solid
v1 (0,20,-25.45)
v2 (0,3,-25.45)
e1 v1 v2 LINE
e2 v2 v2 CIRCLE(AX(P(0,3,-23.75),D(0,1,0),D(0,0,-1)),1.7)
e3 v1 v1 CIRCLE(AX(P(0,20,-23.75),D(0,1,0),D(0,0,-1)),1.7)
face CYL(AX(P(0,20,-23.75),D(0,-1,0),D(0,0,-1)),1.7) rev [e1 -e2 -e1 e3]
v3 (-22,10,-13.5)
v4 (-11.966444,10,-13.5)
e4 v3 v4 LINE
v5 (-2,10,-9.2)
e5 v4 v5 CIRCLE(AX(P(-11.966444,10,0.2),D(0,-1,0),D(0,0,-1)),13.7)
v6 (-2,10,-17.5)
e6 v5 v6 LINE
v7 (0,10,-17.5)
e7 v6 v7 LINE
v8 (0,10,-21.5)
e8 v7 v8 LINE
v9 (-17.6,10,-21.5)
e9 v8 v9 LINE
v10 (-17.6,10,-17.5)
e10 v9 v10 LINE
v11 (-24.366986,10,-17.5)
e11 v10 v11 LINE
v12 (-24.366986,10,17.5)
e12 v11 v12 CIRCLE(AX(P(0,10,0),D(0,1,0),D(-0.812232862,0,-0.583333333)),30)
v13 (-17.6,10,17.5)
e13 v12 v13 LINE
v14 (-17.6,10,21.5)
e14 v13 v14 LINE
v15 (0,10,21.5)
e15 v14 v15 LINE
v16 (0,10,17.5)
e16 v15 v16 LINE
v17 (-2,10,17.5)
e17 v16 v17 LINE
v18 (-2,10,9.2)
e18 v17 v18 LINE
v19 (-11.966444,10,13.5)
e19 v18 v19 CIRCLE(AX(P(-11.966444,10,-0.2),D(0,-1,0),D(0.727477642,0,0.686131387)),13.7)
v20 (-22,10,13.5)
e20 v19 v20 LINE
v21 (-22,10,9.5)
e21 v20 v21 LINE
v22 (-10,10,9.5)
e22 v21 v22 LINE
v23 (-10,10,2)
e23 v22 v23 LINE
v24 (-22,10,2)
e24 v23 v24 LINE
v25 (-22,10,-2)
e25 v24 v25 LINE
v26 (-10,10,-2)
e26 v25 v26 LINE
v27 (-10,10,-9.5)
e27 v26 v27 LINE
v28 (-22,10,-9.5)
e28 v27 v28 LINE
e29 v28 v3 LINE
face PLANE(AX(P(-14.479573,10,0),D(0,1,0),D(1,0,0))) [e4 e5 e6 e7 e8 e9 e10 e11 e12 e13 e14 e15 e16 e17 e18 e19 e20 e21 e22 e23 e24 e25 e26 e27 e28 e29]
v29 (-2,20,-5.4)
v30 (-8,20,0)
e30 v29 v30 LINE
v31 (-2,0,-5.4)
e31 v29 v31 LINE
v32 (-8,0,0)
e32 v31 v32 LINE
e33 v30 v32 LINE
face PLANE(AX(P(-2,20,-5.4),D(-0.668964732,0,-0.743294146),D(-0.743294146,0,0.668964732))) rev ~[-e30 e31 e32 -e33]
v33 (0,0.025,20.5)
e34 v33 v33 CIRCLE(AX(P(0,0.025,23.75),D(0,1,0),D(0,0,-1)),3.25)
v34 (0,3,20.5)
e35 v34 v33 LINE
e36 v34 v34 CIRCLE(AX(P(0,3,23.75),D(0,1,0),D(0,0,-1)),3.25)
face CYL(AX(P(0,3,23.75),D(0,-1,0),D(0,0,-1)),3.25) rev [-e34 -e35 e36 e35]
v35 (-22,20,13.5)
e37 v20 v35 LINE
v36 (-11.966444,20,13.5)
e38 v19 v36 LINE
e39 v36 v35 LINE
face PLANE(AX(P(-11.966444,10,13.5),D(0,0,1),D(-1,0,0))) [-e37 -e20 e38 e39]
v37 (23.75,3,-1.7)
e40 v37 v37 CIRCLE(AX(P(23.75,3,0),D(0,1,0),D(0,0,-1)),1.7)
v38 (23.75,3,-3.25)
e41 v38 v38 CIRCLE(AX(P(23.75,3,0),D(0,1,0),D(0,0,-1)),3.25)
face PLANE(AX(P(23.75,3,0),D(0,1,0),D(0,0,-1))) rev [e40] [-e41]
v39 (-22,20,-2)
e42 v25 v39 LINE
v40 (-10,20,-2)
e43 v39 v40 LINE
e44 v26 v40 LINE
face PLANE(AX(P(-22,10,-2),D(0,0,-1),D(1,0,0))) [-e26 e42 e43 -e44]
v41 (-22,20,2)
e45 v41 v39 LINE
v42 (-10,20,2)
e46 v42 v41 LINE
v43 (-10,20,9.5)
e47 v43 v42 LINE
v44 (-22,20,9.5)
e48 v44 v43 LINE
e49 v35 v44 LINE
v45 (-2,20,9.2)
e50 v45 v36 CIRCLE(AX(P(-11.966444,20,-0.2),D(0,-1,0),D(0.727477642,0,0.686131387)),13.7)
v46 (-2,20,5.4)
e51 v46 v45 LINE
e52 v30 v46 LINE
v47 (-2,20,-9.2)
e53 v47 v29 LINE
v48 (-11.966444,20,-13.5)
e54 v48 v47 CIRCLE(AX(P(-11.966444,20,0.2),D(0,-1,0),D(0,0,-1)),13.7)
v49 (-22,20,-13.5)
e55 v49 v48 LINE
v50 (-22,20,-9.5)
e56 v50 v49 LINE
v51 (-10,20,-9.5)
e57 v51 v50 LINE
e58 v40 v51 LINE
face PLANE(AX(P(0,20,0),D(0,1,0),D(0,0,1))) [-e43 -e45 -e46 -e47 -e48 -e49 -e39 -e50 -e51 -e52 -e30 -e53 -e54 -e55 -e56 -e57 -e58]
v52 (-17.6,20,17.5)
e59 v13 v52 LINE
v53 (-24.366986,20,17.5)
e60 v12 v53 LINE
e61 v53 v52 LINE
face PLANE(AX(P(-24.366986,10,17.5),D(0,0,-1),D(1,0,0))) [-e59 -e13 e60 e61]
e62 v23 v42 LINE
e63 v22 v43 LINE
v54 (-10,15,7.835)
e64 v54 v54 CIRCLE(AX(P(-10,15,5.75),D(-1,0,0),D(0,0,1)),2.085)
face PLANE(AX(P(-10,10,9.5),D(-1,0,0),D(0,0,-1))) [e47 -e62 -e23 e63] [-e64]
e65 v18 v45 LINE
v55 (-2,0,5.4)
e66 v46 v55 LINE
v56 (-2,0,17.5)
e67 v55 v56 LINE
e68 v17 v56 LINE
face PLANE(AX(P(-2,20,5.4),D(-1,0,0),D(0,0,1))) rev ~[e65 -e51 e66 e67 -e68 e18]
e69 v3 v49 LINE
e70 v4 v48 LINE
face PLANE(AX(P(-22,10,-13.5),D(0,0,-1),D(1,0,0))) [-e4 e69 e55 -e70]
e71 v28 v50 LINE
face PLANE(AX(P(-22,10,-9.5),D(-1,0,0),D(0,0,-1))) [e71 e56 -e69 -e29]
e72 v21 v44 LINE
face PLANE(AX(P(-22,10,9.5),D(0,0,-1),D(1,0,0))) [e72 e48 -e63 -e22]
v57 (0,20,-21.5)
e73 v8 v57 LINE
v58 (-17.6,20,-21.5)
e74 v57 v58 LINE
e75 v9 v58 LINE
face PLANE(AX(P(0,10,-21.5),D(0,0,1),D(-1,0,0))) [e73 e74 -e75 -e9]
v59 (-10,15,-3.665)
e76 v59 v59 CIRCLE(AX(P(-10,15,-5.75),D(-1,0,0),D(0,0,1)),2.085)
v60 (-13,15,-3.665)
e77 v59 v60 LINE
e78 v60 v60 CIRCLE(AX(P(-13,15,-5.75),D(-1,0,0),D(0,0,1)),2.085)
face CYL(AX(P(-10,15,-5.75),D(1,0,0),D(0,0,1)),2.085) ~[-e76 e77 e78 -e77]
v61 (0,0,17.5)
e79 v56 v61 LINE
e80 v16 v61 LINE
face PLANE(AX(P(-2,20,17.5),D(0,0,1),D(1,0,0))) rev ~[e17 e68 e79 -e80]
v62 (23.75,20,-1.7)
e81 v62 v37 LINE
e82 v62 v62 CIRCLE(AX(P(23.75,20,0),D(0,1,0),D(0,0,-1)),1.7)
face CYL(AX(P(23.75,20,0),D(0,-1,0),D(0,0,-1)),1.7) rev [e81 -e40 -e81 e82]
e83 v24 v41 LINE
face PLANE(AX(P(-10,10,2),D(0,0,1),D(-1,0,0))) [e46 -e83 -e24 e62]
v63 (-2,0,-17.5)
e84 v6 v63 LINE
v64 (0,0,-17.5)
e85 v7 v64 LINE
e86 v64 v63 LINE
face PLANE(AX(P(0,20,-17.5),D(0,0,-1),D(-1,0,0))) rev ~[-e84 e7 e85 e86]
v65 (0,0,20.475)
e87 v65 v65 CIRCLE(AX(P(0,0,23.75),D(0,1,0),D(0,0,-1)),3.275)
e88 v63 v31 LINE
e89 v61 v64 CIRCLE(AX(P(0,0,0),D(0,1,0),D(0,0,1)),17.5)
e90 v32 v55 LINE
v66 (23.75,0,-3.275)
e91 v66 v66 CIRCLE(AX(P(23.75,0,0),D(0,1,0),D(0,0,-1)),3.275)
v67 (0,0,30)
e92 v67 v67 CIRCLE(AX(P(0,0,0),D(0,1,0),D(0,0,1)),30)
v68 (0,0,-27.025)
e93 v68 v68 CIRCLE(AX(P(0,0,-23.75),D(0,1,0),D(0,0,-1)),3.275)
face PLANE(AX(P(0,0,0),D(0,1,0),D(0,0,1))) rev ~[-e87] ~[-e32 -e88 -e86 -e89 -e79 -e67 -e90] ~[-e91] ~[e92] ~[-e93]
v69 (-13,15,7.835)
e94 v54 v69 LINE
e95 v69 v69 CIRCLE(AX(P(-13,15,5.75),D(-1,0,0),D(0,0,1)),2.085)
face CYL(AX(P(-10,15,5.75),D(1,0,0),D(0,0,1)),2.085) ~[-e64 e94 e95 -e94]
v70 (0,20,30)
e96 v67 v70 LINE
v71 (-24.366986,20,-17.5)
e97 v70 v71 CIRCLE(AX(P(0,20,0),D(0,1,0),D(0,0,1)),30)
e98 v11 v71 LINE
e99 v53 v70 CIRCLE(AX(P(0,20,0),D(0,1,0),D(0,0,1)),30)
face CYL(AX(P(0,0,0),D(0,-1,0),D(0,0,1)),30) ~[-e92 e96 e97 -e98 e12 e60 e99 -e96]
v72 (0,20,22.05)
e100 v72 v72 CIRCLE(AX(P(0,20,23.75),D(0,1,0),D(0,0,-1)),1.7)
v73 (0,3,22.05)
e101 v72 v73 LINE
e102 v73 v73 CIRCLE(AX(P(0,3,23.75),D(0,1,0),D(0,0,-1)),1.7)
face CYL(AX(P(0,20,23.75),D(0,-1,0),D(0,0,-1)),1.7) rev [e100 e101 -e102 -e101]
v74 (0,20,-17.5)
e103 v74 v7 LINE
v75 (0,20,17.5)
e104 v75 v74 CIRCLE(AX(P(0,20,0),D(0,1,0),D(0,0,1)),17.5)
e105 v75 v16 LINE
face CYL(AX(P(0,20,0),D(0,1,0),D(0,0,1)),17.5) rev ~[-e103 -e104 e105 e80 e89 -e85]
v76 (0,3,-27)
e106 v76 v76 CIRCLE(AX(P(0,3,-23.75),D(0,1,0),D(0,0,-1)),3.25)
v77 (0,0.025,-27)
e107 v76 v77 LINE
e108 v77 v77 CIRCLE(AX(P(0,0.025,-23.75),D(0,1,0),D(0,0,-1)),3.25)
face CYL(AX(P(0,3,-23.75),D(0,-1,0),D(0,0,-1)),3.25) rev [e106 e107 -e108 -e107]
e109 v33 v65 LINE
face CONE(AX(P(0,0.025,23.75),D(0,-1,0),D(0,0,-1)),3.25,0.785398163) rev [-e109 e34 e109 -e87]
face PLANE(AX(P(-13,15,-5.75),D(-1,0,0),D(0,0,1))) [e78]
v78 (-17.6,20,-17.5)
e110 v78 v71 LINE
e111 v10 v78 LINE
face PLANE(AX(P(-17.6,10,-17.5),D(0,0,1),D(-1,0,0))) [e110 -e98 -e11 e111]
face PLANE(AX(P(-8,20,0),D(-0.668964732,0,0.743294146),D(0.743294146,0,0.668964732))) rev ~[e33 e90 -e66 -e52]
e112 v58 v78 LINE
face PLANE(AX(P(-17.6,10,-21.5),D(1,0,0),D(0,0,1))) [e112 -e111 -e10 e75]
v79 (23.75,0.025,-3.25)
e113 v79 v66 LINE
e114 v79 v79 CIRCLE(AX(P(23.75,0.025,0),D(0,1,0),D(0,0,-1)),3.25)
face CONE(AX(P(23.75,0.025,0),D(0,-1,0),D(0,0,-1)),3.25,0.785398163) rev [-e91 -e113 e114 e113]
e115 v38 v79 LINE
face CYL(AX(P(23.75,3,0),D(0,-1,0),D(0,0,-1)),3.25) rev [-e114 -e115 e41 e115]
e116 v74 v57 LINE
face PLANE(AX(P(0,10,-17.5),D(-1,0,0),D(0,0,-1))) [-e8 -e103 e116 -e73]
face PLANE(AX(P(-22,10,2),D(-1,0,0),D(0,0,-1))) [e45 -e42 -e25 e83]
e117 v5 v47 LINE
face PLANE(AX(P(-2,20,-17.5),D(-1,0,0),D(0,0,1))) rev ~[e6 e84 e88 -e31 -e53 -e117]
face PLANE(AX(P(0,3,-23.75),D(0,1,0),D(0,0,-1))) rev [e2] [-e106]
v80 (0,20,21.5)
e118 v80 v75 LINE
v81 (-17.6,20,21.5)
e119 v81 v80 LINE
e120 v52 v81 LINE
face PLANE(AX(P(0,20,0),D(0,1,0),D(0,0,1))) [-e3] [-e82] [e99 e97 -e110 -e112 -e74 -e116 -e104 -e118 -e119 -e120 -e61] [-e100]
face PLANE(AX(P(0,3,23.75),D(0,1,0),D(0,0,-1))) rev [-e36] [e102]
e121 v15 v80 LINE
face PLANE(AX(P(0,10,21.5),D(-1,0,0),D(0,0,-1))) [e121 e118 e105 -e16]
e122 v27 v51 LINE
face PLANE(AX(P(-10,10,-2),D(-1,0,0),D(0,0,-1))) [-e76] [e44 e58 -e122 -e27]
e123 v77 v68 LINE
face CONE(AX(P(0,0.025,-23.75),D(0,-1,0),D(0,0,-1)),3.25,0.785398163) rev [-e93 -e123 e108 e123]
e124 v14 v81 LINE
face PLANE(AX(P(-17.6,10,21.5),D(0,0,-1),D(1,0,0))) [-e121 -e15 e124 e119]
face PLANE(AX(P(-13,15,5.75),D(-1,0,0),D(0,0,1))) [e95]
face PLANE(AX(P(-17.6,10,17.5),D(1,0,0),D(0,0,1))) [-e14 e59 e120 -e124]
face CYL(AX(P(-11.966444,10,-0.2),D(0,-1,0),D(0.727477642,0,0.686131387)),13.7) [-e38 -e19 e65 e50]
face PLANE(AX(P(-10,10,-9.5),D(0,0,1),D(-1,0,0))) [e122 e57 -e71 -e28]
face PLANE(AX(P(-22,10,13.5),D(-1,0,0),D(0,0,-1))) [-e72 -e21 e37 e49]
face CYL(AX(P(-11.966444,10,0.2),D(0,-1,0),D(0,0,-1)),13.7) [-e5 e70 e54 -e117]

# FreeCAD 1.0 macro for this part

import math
import FreeCAD as App
import Part
import Sketcher

V = App.Vector
Q = App.Units.Quantity

doc = App.newDocument("Part")
body = doc.addObject("PartDesign::Body", "Body")

sketch1 = body.newObject("Sketcher::SketchObject", "Sketch")
sketch1.AttachmentSupport = (doc.getObject("XZ_Plane"), [""])
sketch1.MapMode = "FlatFace"
sketch1.addGeometry(Part.Circle(V(0, 0, 0), V(0, 0, 1), 30), False)
sketch1.addConstraint([
    Sketcher.Constraint("Coincident", 0, 3, -1, 1),
    Sketcher.Constraint("Diameter", 0, 60.0),
])
pad1 = body.newObject("PartDesign::Pad", "Pad")
pad1.Profile = sketch1
pad1.Length = 20
pad1.Reversed = True

sketch2 = body.newObject("Sketcher::SketchObject", "Sketch001")
sketch2.AttachmentSupport = (doc.getObject("XZ_Plane"), [""])
sketch2.MapMode = "FlatFace"
sketch2.AttachmentOffset = App.Placement(V(0, 0, -20), App.Rotation())
sketch2.addGeometry([
    Part.ArcOfCircle(Part.Circle(V(0, 0, 0), V(0, 0, 1), 17.5), math.radians(-90), math.radians(90)),
    Part.LineSegment(V(0, -17.5, 0), V(-2, -17.5, 0)),
    Part.LineSegment(V(-2, -17.5, 0), V(-2, -5.4, 0)),
    Part.LineSegment(V(-2, -5.4, 0), V(-8, 0, 0)),
    Part.LineSegment(V(-8, 0, 0), V(-2, 5.4, 0)),
    Part.LineSegment(V(-2, 5.4, 0), V(-2, 17.5, 0)),
    Part.LineSegment(V(-2, 17.5, 0), V(0, 17.5, 0)),
], False)
sketch2.addConstraint([
    Sketcher.Constraint("Tangent", 0, 1, 1, 1),
    Sketcher.Constraint("Coincident", 1, 2, 2, 1),
    Sketcher.Constraint("Coincident", 2, 2, 3, 1),
    Sketcher.Constraint("Coincident", 3, 2, 4, 1),
    Sketcher.Constraint("Coincident", 4, 2, 5, 1),
    Sketcher.Constraint("Coincident", 5, 2, 6, 1),
    Sketcher.Constraint("Tangent", 6, 2, 0, 2),
    Sketcher.Constraint("Horizontal", 1),
    Sketcher.Constraint("Vertical", 2),
    Sketcher.Constraint("Vertical", 5),
    Sketcher.Constraint("Horizontal", 6),
    Sketcher.Constraint("Coincident", 0, 3, -1, 1),
    Sketcher.Constraint("Symmetric", 2, 2, 4, 2, -1),
    Sketcher.Constraint("PointOnObject", 3, 2, -1),
    Sketcher.Constraint("Radius", 0, 17.5),
    Sketcher.Constraint("DistanceX", 1, 2, 1, 1, 2.0),
    Sketcher.Constraint("DistanceY", 2, 1, 2, 2, 12.1),
    Sketcher.Constraint("DistanceX", 3, 2, -1, 1, 8.0),
])
pocket1 = body.newObject("PartDesign::Pocket", "Pocket")
pocket1.Profile = sketch2
pocket1.Type = "ThroughAll"
pocket1.Reversed = True

sketch3 = body.newObject("Sketcher::SketchObject", "Sketch002")
sketch3.AttachmentSupport = (doc.getObject("XZ_Plane"), [""])
sketch3.MapMode = "FlatFace"
sketch3.AttachmentOffset = App.Placement(V(0, 0, -10), App.Rotation())
sketch3.addGeometry([
    Part.LineSegment(V(-17.6, -17.5, 0), V(-24.4, -17.5, 0)),
    Part.ArcOfCircle(Part.Circle(V(0, 0, 0), V(0, 0, 1), 30), math.radians(144), math.radians(216)),
    Part.LineSegment(V(-24.4, 17.5, 0), V(-17.6, 17.5, 0)),
    Part.LineSegment(V(-17.6, 17.5, 0), V(-17.6, 21.5, 0)),
    Part.LineSegment(V(-17.6, 21.5, 0), V(0, 21.5, 0)),
    Part.LineSegment(V(0, 21.5, 0), V(0, 17.5, 0)),
    Part.LineSegment(V(0, 17.5, 0), V(-2, 17.5, 0)),
    Part.LineSegment(V(-2, 17.5, 0), V(-2, 9.2, 0)),
    Part.ArcOfCircle(Part.Circle(V(-12, -0.2, 0), V(0, 0, 1), 13.7), math.radians(43), math.radians(90)),
    Part.LineSegment(V(-12, 13.5, 0), V(-22, 13.5, 0)),
    Part.LineSegment(V(-22, 13.5, 0), V(-22, 9.5, 0)),
    Part.LineSegment(V(-22, 9.5, 0), V(-10, 9.5, 0)),
    Part.LineSegment(V(-10, 9.5, 0), V(-10, 2, 0)),
    Part.LineSegment(V(-10, 2, 0), V(-22, 2, 0)),
    Part.LineSegment(V(-22, 2, 0), V(-22, -2, 0)),
    Part.LineSegment(V(-22, -2, 0), V(-10, -2, 0)),
    Part.LineSegment(V(-10, -2, 0), V(-10, -9.5, 0)),
    Part.LineSegment(V(-10, -9.5, 0), V(-22, -9.5, 0)),
    Part.LineSegment(V(-22, -9.5, 0), V(-22, -13.5, 0)),
    Part.LineSegment(V(-22, -13.5, 0), V(-12, -13.5, 0)),
    Part.ArcOfCircle(Part.Circle(V(-12, 0.2, 0), V(0, 0, 1), 13.7), math.radians(-90), math.radians(-43)),
    Part.LineSegment(V(-2, -9.2, 0), V(-2, -17.5, 0)),
    Part.LineSegment(V(-2, -17.5, 0), V(0, -17.5, 0)),
    Part.LineSegment(V(0, -17.5, 0), V(0, -21.5, 0)),
    Part.LineSegment(V(0, -21.5, 0), V(-17.6, -21.5, 0)),
    Part.LineSegment(V(-17.6, -21.5, 0), V(-17.6, -17.5, 0)),
], False)
sketch3.addConstraint([
    Sketcher.Constraint("Coincident", 0, 2, 1, 2),
    Sketcher.Constraint("Coincident", 1, 1, 2, 1),
    Sketcher.Constraint("Coincident", 2, 2, 3, 1),
    Sketcher.Constraint("Coincident", 3, 2, 4, 1),
    Sketcher.Constraint("Coincident", 4, 2, 5, 1),
    Sketcher.Constraint("Coincident", 5, 2, 6, 1),
    Sketcher.Constraint("Coincident", 6, 2, 7, 1),
    Sketcher.Constraint("Coincident", 7, 2, 8, 1),
    Sketcher.Constraint("Tangent", 8, 2, 9, 1),
    Sketcher.Constraint("Coincident", 9, 2, 10, 1),
    Sketcher.Constraint("Coincident", 10, 2, 11, 1),
    Sketcher.Constraint("Coincident", 11, 2, 12, 1),
    Sketcher.Constraint("Coincident", 12, 2, 13, 1),
    Sketcher.Constraint("Coincident", 13, 2, 14, 1),
    Sketcher.Constraint("Coincident", 14, 2, 15, 1),
    Sketcher.Constraint("Coincident", 15, 2, 16, 1),
    Sketcher.Constraint("Coincident", 16, 2, 17, 1),
    Sketcher.Constraint("Coincident", 17, 2, 18, 1),
    Sketcher.Constraint("Coincident", 18, 2, 19, 1),
    Sketcher.Constraint("Tangent", 19, 2, 20, 1),
    Sketcher.Constraint("Coincident", 20, 2, 21, 1),
    Sketcher.Constraint("Coincident", 21, 2, 22, 1),
    Sketcher.Constraint("Coincident", 22, 2, 23, 1),
    Sketcher.Constraint("Coincident", 23, 2, 24, 1),
    Sketcher.Constraint("Coincident", 24, 2, 25, 1),
    Sketcher.Constraint("Coincident", 25, 2, 0, 1),
    Sketcher.Constraint("Horizontal", 0),
    Sketcher.Constraint("Horizontal", 2),
    Sketcher.Constraint("Vertical", 3),
    Sketcher.Constraint("Horizontal", 4),
    Sketcher.Constraint("Vertical", 5),
    Sketcher.Constraint("Horizontal", 6),
    Sketcher.Constraint("Vertical", 7),
    Sketcher.Constraint("Horizontal", 9),
    Sketcher.Constraint("Vertical", 10),
    Sketcher.Constraint("Horizontal", 11),
    Sketcher.Constraint("Vertical", 12),
    Sketcher.Constraint("Horizontal", 13),
    Sketcher.Constraint("Vertical", 14),
    Sketcher.Constraint("Horizontal", 15),
    Sketcher.Constraint("Vertical", 16),
    Sketcher.Constraint("Horizontal", 17),
    Sketcher.Constraint("Vertical", 18),
    Sketcher.Constraint("Horizontal", 19),
    Sketcher.Constraint("Vertical", 21),
    Sketcher.Constraint("Horizontal", 22),
    Sketcher.Constraint("Vertical", 23),
    Sketcher.Constraint("Horizontal", 24),
    Sketcher.Constraint("Vertical", 25),
    Sketcher.Constraint("Coincident", 1, 3, -1, 1),
    Sketcher.Constraint("Equal", 8, 20),
    Sketcher.Constraint("Symmetric", 5, 2, 22, 2, -1, 1),
    Sketcher.Constraint("Symmetric", 8, 3, 20, 3, -1),
    Sketcher.Constraint("Symmetric", 12, 2, 15, 2, -1),
    Sketcher.Constraint("Symmetric", 10, 2, 17, 2, -1),
    Sketcher.Constraint("Symmetric", 4, 2, 23, 2, -1),
    Sketcher.Constraint("Symmetric", 2, 2, 25, 2, -1),
    Sketcher.Constraint("Horizontal", 2, 2, 5, 2),
    Sketcher.Constraint("Vertical", 10, 2, 13, 2),
    Sketcher.Constraint("Vertical", 7, 2, 20, 2),
    Sketcher.Constraint("Equal", 5, 10),
    Sketcher.Constraint("Equal", 10, 14),
    Sketcher.Constraint("Radius", 1, 30.0),
    Sketcher.Constraint("Radius", 8, 13.7),
    Sketcher.Constraint("DistanceX", 6, 2, 6, 1, 2.0),
    Sketcher.Constraint("DistanceX", 11, 1, 11, 2, 12.0),
    Sketcher.Constraint("DistanceY", 3, 1, 3, 2, 4.0),
    Sketcher.Constraint("DistanceX", 4, 1, 4, 2, 17.6),
    Sketcher.Constraint("DistanceY", 7, 2, 7, 1, 8.3),
    Sketcher.Constraint("DistanceY", 12, 2, 12, 1, 7.5),
    Sketcher.Constraint("DistanceX", 9, 2, -1, 1, 22.0),
    Sketcher.Constraint("DistanceY", 0, 2, 1, 1, 35.0),
])
pocket2 = body.newObject("PartDesign::Pocket", "Pocket001")
pocket2.Profile = sketch3
pocket2.Length = 10

sketch4 = body.newObject("Sketcher::SketchObject", "Sketch003")
sketch4.AttachmentSupport = (doc.getObject("YZ_Plane"), [""])
sketch4.MapMode = "FlatFace"
sketch4.addGeometry([
    Part.LineSegment(V(20, -23.75, 0), V(0, -23.75, 0)),
    Part.LineSegment(V(0, -23.75, 0), V(0, -27.025, 0)),
    Part.LineSegment(V(0, -27.025, 0), V(0.025, -27, 0)),
    Part.LineSegment(V(0.025, -27, 0), V(3, -27, 0)),
    Part.LineSegment(V(3, -27, 0), V(3, -25.45, 0)),
    Part.LineSegment(V(3, -25.45, 0), V(20, -25.45, 0)),
    Part.LineSegment(V(20, -25.45, 0), V(20, -23.75, 0)),
], False)
sketch4.addGeometry(Part.LineSegment(V(0, -23.75, 0), V(20, -23.75, 0)), True)
sketch4.addConstraint([
    Sketcher.Constraint("Coincident", 0, 2, 1, 1),
    Sketcher.Constraint("Coincident", 1, 2, 2, 1),
    Sketcher.Constraint("Coincident", 2, 2, 3, 1),
    Sketcher.Constraint("Coincident", 3, 2, 4, 1),
    Sketcher.Constraint("Coincident", 4, 2, 5, 1),
    Sketcher.Constraint("Coincident", 5, 2, 6, 1),
    Sketcher.Constraint("Coincident", 6, 2, 0, 1),
    Sketcher.Constraint("Horizontal", 0),
    Sketcher.Constraint("Vertical", 1),
    Sketcher.Constraint("Horizontal", 3),
    Sketcher.Constraint("Vertical", 4),
    Sketcher.Constraint("Horizontal", 5),
    Sketcher.Constraint("Vertical", 6),
    Sketcher.Constraint("Horizontal", 7),
    Sketcher.Constraint("Coincident", 7, 1, 0, 2),
    Sketcher.Constraint("PointOnObject", 0, 2, -2),
    Sketcher.Constraint("Vertical", 5, 2, 7, 2),
    Sketcher.Constraint("DistanceX", 0, 2, 0, 1, 20.0),
    Sketcher.Constraint("DistanceX", 5, 1, 5, 2, 17.0),
    Sketcher.Constraint("Angle", 2, Q("45 deg")),
    Sketcher.Constraint("DistanceY", 6, 1, 6, 2, 1.7),
    Sketcher.Constraint("DistanceY", 2, 2, -1, 1, 27.0),
    Sketcher.Constraint("DistanceY", 4, 1, 4, 2, 1.55),
    Sketcher.Constraint("DistanceX", 3, 1, 3, 2, 2.975),
])
groove = body.newObject("PartDesign::Groove", "Groove")
groove.Profile = sketch4
groove.ReferenceAxis = (sketch4, ["Axis0"])
groove.Angle = 360
doc.recompute()

datumline = body.newObject("PartDesign::Line", "DatumLine")
datumline.Placement = App.Placement(V(0, 0, 0), App.Rotation(V(0, 0, 1), V(0.707106781, 0, 0.707106781)))
linearpattern = body.newObject("PartDesign::LinearPattern", "LinearPattern")
linearpattern.Originals = [groove]
linearpattern.Direction = (datumline, [""])
linearpattern.Mode = "offset"
linearpattern.Offset = 33.587572
linearpattern.Occurrences = 2
body.Tip = linearpattern
doc.recompute()

linearpattern2 = body.newObject("PartDesign::LinearPattern", "LinearPattern001")
linearpattern2.Originals = [groove]
linearpattern2.Direction = (doc.getObject("Z_Axis"), [""])
linearpattern2.Mode = "offset"
linearpattern2.Offset = 47.5
linearpattern2.Occurrences = 2
body.Tip = linearpattern2

sketch5 = body.newObject("Sketcher::SketchObject", "Sketch004")
sketch5.AttachmentSupport = (doc.getObject("YZ_Plane"), [""])
sketch5.MapMode = "FlatFace"
sketch5.AttachmentOffset = App.Placement(V(0, 0, -10), App.Rotation())
sketch5.addGeometry([
    Part.Circle(V(15, -5.8, 0), V(0, 0, 1), 2.1),
    Part.Circle(V(15, 5.8, 0), V(0, 0, 1), 2.1),
], False)
sketch5.addConstraint([
    Sketcher.Constraint("Equal", 0, 1),
    Sketcher.Constraint("Symmetric", 0, 3, 1, 3, -1),
    Sketcher.Constraint("Diameter", 0, 4.17),
    Sketcher.Constraint("DistanceX", -1, 1, 0, 3, 15.0),
    Sketcher.Constraint("DistanceY", 0, 3, 1, 3, 11.5),
])
pad2 = body.newObject("PartDesign::Pad", "Pad001")
pad2.Profile = sketch5
pad2.Length = 3
pad2.Reversed = True

doc.recompute()
